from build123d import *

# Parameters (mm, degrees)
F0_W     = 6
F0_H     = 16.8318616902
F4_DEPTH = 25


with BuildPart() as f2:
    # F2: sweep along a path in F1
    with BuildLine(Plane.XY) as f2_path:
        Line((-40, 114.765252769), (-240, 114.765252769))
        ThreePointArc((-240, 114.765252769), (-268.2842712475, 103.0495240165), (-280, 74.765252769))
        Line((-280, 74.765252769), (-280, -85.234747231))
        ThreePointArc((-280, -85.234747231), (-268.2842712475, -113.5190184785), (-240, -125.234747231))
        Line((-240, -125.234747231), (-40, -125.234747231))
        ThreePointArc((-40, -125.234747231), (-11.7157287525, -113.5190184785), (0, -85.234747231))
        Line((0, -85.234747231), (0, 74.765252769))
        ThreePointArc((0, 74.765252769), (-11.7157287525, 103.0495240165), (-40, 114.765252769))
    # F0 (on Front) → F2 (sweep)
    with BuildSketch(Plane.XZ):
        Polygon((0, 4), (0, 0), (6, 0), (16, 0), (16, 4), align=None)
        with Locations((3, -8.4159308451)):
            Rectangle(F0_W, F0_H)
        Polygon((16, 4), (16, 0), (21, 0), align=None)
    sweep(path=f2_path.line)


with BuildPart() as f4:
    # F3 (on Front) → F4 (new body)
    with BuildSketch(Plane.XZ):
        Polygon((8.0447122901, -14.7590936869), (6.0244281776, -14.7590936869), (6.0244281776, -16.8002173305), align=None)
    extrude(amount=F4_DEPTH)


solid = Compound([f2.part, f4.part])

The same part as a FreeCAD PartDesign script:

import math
import FreeCAD as App
import Part
import Sketcher


def add_polygon(sketch, points):
    """Adds a closed chain of lines whose ends are joined by coincident constraints."""
    first, n = sketch.GeometryCount, len(points)
    for a, b in zip(points, points[1:] + points[:1]):
        sketch.addGeometry(Part.LineSegment(App.Vector(*a, 0), App.Vector(*b, 0)), False)
    for i in range(n):
        sketch.addConstraint(Sketcher.Constraint("Coincident", first + i, 2, first + (i + 1) % n, 1))

doc = App.newDocument("Part")
body = doc.addObject("PartDesign::Body", "Body")

sketch1 = doc.addObject("Sketcher::SketchObject", "Sketch")
body.addObject(sketch1)
sketch1.AttachmentSupport = (doc.XZ_Plane, [""])
sketch1.MapMode = "FlatFace"
add_polygon(sketch1, [(0, 4), (0, -17), (6, -17), (6, 0), (21, 0), (16, 4)])
sketch1.addConstraint([
    Sketcher.Constraint("Vertical", 0),
    Sketcher.Constraint("Horizontal", 1),
    Sketcher.Constraint("Vertical", 2),
    Sketcher.Constraint("Horizontal", 3),
    Sketcher.Constraint("Horizontal", 5),
    Sketcher.Constraint("PointOnObject", 0, 2, -2),
    Sketcher.Constraint("PointOnObject", 2, 2, -1),
    Sketcher.Constraint("DistanceX", 1, 1, 1, 2, 6.0),
    Sketcher.Constraint("DistanceX", 3, 1, 3, 2, 15.0),
    Sketcher.Constraint("DistanceX", 5, 2, 5, 1, 16.0),
    Sketcher.Constraint("DistanceY", -1, 1, 4, 2, 4.0),
    Sketcher.Constraint("DistanceY", 0, 2, 0, 1, 20.831862),
])

sketch2 = doc.addObject("Sketcher::SketchObject", "Sketch001")
body.addObject(sketch2)
sketch2.AttachmentSupport = (doc.XY_Plane, [""])
sketch2.MapMode = "FlatFace"
sketch2.addGeometry([
    Part.LineSegment(App.Vector(-40, 115, 0), App.Vector(-240, 115, 0)),
    Part.ArcOfCircle(Part.Circle(App.Vector(-240, 75, 0), App.Vector(0, 0, 1), 40), math.radians(90), math.radians(180)),
    Part.LineSegment(App.Vector(-280, 75, 0), App.Vector(-280, -85, 0)),
    Part.ArcOfCircle(Part.Circle(App.Vector(-240, -85, 0), App.Vector(0, 0, 1), 40), math.radians(180), math.radians(270)),
    Part.LineSegment(App.Vector(-240, -125, 0), App.Vector(-40, -125, 0)),
    Part.ArcOfCircle(Part.Circle(App.Vector(-40, -85, 0), App.Vector(0, 0, 1), 40), math.radians(-90), math.radians(0)),
    Part.LineSegment(App.Vector(0, -85, 0), App.Vector(0, 75, 0)),
    Part.ArcOfCircle(Part.Circle(App.Vector(-40, 75, 0), App.Vector(0, 0, 1), 40), math.radians(0), math.radians(90)),
], False)
sketch2.addConstraint([
    Sketcher.Constraint("Tangent", 0, 2, 1, 1),
    Sketcher.Constraint("Tangent", 1, 2, 2, 1),
    Sketcher.Constraint("Tangent", 2, 2, 3, 1),
    Sketcher.Constraint("Tangent", 3, 2, 4, 1),
    Sketcher.Constraint("Tangent", 4, 2, 5, 1),
    Sketcher.Constraint("Tangent", 5, 2, 6, 1),
    Sketcher.Constraint("Tangent", 6, 2, 7, 1),
    Sketcher.Constraint("Tangent", 7, 2, 0, 1),
    Sketcher.Constraint("Horizontal", 0),
    Sketcher.Constraint("Vertical", 2),
    Sketcher.Constraint("Horizontal", 4),
    Sketcher.Constraint("Vertical", 6),
    Sketcher.Constraint("Equal", 1, 3),
    Sketcher.Constraint("Equal", 3, 5),
    Sketcher.Constraint("Equal", 5, 7),
    Sketcher.Constraint("PointOnObject", 5, 2, -2),
    Sketcher.Constraint("Radius", 1, 40.0),
    Sketcher.Constraint("DistanceX", 0, 2, 0, 1, 200.0),
    Sketcher.Constraint("DistanceY", 2, 2, 2, 1, 160.0),
    Sketcher.Constraint("DistanceY", -1, 1, 1, 3, 74.765253),
])
doc.recompute()

additivepipe = doc.addObject("PartDesign::AdditivePipe", "AdditivePipe")
body.addObject(additivepipe)
additivepipe.Profile = sketch1
additivepipe.Spine = (sketch2, ["Edge1", "Edge2", "Edge3", "Edge4", "Edge5", "Edge6", "Edge7", "Edge8"])
body2 = doc.addObject("PartDesign::Body", "Body001")

sketch3 = doc.addObject("Sketcher::SketchObject", "Sketch002")
body2.addObject(sketch3)
sketch3.AttachmentSupport = (doc.getObject("XZ_Plane001"), [""])
sketch3.MapMode = "FlatFace"
add_polygon(sketch3, [(8, -14.8), (6, -14.8), (6, -16.8)])
sketch3.addConstraint([
    Sketcher.Constraint("Horizontal", 0),
    Sketcher.Constraint("Vertical", 1),
    Sketcher.Constraint("DistanceX", 0, 2, 0, 1, 2.020284),
    Sketcher.Constraint("DistanceY", 1, 2, 1, 1, 2.041124),
    Sketcher.Constraint("DistanceX", -1, 1, 0, 2, 6.024428),
    Sketcher.Constraint("DistanceY", 0, 2, -1, 1, 14.759094),
])
pad1 = doc.addObject("PartDesign::Pad", "Pad")
body2.addObject(pad1)
pad1.Profile = sketch3
pad1.Length = 25

doc.recompute()
